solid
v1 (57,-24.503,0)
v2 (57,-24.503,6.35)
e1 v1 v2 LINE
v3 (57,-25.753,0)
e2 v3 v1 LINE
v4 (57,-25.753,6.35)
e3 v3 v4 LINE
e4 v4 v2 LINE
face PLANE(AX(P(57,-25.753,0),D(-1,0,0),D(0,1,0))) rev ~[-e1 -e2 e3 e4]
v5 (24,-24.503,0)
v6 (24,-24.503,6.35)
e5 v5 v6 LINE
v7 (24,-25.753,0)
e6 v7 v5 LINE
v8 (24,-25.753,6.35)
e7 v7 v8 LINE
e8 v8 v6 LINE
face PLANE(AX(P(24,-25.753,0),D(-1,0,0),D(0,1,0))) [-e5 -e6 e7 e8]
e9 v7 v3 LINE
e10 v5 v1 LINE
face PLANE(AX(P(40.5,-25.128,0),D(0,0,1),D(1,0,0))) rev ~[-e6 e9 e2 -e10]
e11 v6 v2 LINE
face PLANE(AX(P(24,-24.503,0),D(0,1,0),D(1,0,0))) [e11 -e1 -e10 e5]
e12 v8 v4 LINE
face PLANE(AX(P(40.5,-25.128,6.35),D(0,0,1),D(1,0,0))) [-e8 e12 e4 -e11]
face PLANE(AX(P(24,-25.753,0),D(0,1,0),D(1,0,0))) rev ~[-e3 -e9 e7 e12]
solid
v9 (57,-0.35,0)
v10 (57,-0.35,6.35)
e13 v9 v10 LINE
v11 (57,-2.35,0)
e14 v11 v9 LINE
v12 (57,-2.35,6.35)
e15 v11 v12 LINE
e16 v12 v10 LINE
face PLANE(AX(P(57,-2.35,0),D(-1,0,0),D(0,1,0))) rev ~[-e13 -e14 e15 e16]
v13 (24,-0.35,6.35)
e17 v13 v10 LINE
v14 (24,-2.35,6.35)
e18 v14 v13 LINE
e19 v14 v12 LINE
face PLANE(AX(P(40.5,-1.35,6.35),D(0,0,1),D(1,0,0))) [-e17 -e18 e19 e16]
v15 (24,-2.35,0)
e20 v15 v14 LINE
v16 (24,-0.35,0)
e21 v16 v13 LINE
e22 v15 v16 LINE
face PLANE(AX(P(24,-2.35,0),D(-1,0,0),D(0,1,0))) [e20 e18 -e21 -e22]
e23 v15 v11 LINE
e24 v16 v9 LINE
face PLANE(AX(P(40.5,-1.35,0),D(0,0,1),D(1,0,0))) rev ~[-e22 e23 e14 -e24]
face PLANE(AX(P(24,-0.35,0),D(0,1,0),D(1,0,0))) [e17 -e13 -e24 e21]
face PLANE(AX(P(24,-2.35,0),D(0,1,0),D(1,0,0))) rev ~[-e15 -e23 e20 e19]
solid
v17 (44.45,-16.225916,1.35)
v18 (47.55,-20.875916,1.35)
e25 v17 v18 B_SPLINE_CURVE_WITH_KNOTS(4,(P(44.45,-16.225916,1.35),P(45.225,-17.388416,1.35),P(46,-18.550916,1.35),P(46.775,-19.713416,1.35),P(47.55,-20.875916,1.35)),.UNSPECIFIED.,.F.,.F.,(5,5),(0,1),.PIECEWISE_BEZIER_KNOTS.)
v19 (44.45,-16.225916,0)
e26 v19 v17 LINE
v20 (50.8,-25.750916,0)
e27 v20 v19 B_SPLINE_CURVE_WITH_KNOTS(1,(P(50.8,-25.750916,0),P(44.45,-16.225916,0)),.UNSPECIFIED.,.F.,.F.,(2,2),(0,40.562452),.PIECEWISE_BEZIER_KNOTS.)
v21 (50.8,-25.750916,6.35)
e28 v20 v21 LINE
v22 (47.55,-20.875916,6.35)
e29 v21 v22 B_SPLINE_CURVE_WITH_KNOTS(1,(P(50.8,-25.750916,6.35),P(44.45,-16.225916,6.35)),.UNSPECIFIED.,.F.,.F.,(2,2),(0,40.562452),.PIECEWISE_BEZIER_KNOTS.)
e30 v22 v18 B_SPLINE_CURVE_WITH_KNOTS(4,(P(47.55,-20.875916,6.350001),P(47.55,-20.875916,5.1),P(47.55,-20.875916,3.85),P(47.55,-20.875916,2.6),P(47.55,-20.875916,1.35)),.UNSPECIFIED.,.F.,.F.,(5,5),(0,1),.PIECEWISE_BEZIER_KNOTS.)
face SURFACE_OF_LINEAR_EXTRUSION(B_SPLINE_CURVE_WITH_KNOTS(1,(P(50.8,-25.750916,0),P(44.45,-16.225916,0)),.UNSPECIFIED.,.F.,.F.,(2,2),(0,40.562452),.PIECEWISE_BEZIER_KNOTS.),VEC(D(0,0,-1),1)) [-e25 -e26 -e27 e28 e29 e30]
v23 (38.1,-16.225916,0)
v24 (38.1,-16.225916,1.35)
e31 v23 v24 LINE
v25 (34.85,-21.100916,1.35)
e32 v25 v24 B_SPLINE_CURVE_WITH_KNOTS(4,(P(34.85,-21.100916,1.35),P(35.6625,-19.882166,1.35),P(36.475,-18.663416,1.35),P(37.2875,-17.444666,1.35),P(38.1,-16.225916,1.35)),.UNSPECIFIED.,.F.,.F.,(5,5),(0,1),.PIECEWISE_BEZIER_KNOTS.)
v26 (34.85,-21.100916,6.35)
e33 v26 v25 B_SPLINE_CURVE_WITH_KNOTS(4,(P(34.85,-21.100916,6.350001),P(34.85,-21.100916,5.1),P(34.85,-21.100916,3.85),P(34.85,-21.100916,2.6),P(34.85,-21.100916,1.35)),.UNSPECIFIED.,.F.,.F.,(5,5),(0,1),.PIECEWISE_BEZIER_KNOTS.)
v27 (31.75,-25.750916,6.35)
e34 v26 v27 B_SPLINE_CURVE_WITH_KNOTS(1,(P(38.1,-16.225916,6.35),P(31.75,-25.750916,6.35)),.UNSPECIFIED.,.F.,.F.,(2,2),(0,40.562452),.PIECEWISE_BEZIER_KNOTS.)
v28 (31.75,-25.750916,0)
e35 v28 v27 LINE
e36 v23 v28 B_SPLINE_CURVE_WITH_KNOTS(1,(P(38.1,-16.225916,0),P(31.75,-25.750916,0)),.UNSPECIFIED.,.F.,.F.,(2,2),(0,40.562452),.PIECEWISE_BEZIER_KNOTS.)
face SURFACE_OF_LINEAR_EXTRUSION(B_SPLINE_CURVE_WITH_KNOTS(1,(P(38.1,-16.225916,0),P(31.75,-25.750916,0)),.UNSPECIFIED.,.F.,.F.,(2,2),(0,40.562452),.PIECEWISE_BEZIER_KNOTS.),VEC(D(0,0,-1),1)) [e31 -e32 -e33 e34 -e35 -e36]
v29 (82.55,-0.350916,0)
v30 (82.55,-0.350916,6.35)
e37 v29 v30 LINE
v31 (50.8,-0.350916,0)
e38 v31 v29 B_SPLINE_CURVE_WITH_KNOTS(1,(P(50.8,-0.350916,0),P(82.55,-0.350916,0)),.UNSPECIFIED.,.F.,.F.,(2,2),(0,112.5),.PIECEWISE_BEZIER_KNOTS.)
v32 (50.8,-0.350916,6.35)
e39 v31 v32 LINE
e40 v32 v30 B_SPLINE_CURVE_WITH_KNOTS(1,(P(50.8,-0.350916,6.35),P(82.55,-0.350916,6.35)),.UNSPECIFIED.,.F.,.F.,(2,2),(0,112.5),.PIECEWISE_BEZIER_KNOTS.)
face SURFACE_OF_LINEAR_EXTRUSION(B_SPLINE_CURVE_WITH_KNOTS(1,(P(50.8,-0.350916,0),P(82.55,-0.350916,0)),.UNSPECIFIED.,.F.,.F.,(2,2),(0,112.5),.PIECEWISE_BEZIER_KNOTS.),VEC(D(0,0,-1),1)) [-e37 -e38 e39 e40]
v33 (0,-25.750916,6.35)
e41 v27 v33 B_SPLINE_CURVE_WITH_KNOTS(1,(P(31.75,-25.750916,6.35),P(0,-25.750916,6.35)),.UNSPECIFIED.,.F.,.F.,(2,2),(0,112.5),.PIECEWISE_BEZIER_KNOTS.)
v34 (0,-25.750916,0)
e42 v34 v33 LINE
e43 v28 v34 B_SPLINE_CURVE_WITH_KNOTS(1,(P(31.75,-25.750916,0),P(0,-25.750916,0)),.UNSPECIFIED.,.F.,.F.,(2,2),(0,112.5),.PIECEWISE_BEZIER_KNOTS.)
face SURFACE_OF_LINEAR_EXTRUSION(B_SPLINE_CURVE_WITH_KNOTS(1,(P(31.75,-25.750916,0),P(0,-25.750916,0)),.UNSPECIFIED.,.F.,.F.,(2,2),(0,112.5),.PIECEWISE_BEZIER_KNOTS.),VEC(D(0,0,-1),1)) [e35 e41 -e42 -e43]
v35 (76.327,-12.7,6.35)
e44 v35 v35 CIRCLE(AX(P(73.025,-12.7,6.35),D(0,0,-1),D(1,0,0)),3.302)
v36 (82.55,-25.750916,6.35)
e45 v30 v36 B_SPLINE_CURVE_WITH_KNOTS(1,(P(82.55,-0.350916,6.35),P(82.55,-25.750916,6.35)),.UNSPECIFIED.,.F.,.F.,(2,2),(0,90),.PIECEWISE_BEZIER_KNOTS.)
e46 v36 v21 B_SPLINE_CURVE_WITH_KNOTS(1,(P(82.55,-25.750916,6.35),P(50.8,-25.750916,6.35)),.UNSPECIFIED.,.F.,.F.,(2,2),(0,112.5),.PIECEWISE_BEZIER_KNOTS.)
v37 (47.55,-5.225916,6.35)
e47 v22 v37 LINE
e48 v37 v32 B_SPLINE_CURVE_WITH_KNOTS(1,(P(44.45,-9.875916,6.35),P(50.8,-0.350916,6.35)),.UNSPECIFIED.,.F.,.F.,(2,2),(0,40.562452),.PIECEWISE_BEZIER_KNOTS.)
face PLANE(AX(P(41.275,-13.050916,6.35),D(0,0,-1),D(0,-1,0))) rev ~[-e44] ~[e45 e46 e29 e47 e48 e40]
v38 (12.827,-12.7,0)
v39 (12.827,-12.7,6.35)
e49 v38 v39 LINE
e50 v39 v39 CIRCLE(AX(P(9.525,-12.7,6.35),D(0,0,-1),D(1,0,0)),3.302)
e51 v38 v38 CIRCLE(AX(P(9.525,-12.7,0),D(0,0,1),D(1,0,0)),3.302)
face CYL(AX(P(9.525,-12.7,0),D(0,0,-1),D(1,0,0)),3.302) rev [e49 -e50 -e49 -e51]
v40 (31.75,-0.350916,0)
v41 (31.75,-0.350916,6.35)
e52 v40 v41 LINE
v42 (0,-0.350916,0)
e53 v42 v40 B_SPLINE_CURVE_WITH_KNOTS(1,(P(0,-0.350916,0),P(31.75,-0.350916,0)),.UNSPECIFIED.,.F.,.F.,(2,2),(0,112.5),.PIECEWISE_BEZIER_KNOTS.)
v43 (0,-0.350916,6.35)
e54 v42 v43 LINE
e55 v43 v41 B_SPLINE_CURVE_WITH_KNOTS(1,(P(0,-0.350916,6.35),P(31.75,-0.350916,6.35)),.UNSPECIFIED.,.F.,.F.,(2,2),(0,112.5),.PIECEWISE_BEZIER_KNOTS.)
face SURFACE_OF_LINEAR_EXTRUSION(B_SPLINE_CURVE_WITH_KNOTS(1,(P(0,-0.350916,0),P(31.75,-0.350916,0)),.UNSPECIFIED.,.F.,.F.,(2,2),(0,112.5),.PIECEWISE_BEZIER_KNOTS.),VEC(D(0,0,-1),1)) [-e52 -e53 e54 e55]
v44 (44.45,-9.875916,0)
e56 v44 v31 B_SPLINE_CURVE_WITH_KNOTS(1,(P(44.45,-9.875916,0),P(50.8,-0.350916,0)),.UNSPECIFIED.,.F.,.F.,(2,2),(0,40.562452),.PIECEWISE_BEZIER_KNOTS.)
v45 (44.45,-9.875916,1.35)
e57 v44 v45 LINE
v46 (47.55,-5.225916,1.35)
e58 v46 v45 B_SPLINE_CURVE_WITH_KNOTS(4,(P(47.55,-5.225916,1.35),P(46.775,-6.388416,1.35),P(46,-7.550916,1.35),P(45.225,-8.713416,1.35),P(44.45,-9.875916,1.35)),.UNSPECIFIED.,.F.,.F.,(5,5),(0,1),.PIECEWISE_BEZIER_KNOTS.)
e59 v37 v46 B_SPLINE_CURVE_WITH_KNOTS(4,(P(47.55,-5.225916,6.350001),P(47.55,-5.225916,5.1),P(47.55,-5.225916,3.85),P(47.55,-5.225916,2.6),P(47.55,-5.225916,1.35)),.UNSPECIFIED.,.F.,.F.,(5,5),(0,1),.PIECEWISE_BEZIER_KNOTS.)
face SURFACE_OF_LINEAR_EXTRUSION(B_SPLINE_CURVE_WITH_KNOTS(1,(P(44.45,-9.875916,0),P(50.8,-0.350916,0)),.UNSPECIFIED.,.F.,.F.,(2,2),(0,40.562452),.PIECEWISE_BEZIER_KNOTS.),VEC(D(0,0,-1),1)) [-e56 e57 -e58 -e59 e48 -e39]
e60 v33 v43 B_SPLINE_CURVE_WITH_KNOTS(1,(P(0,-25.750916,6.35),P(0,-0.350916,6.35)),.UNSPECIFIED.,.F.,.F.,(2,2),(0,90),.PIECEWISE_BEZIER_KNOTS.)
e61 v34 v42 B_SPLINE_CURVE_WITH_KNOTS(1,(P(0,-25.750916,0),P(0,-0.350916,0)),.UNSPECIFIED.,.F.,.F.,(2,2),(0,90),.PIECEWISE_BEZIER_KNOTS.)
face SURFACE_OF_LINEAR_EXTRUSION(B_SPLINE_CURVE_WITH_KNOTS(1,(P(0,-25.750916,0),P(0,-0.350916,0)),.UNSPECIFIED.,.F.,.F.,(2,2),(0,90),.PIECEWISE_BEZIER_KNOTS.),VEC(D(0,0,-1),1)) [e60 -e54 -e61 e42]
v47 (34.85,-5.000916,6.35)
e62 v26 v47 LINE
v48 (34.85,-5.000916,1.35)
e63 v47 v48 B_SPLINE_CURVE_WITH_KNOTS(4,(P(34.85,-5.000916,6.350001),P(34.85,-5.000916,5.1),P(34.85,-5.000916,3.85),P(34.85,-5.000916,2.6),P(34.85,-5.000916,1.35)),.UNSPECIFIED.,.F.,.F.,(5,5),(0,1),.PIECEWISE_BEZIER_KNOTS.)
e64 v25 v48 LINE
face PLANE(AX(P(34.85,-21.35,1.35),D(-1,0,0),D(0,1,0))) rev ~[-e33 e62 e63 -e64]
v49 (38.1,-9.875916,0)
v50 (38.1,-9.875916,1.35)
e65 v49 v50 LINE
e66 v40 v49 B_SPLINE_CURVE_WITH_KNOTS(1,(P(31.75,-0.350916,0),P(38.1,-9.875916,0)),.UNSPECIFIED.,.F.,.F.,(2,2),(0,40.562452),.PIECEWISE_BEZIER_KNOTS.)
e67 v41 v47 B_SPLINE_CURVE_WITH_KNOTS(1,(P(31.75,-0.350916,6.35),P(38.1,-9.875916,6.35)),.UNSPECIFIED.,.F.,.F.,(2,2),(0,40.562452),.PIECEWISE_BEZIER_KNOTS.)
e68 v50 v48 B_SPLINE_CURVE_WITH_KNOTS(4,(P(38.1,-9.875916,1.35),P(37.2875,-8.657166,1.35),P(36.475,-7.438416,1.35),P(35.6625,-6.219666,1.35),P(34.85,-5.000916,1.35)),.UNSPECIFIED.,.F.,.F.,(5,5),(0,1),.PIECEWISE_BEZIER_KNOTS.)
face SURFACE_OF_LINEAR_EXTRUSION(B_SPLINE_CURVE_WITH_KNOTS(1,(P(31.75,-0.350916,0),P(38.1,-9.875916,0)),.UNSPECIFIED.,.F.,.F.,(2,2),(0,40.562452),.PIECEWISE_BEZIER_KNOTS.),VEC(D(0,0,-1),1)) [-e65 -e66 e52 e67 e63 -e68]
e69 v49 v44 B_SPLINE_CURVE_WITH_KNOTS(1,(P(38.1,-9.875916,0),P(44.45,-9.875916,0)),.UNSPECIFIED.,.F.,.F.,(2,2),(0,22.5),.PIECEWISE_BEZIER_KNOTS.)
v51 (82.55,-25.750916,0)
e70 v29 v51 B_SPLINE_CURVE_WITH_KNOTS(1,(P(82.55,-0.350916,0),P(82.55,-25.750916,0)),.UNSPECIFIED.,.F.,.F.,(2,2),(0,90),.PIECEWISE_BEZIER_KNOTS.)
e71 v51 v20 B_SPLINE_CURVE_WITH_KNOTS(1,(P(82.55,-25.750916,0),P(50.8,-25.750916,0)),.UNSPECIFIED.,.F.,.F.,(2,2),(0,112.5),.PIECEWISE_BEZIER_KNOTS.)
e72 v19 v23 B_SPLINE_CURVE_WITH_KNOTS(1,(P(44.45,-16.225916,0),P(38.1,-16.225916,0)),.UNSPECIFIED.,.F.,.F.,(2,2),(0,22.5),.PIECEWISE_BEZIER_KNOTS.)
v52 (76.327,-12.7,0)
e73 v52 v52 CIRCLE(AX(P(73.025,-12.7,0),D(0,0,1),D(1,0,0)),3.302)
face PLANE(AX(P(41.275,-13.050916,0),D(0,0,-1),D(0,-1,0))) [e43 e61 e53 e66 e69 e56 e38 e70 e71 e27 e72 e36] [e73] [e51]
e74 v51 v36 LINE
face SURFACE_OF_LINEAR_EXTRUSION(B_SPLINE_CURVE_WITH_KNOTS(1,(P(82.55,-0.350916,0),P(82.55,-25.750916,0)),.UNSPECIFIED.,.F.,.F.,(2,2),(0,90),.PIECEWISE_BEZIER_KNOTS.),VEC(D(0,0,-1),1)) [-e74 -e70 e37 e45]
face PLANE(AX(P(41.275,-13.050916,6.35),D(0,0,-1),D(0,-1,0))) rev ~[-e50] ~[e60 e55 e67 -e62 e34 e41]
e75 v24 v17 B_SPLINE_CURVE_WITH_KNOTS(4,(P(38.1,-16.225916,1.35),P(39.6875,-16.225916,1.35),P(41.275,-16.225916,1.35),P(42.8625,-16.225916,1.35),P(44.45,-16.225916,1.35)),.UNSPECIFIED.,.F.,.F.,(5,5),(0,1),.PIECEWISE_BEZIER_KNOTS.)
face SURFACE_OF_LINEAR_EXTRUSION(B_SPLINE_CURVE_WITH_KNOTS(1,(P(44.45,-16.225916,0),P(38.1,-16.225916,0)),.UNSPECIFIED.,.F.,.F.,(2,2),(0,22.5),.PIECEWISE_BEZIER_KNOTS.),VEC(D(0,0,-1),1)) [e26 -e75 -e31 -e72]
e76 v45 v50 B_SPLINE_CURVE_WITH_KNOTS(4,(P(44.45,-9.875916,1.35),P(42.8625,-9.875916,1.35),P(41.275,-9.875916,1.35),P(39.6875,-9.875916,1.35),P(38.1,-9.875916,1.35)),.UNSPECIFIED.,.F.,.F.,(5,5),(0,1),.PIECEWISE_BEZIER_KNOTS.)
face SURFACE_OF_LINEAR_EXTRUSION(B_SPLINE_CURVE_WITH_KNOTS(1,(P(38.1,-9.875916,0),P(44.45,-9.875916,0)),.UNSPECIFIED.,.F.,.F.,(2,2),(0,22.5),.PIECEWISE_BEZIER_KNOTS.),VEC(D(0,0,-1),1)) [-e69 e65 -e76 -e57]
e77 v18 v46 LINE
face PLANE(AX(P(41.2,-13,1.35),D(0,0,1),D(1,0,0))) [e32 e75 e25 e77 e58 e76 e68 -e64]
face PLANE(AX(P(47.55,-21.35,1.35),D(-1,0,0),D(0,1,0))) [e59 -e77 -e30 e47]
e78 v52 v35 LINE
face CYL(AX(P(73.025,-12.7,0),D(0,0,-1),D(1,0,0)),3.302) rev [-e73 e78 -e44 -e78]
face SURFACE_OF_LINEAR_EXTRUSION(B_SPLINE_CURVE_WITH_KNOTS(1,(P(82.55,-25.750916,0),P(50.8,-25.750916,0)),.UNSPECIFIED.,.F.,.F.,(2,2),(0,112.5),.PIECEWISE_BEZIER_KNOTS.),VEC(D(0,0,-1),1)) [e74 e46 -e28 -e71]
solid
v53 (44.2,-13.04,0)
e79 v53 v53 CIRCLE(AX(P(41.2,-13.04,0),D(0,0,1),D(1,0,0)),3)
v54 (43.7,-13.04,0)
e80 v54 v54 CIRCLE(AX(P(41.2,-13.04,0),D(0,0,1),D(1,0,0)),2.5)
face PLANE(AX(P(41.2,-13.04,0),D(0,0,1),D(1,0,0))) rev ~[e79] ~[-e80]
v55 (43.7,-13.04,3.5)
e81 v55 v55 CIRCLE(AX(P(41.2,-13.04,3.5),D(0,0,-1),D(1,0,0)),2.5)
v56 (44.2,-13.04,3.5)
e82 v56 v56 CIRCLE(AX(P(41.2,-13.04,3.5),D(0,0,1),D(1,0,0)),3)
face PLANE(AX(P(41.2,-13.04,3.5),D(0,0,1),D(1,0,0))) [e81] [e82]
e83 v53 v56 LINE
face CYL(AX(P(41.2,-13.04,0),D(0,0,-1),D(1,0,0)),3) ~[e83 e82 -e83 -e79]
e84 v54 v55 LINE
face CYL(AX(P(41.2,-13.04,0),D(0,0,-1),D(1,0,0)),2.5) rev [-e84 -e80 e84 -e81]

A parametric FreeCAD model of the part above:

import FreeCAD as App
import Part
import Sketcher

V = App.Vector
Q = App.Units.Quantity

doc = App.newDocument("Part")
body = doc.addObject("PartDesign::Body", "Body")

# Sketch on XY plane
sketch1 = body.newObject("Sketcher::SketchObject", "Sketch")
sketch1.AttachmentSupport = (doc.getObject("XY_Plane"), [""])
sketch1.MapMode = "FlatFace"
sketch1.addGeometry([
    Part.LineSegment(V(24, -0.3, 0), V(24, -2.4, 0)),
    Part.LineSegment(V(24, -2.4, 0), V(57, -2.4, 0)),
    Part.LineSegment(V(57, -2.4, 0), V(57, -0.3, 0)),
    Part.LineSegment(V(57, -0.3, 0), V(24, -0.3, 0)),
], False)
sketch1.addConstraint([
    Sketcher.Constraint("Coincident", 0, 2, 1, 1),
    Sketcher.Constraint("Coincident", 1, 2, 2, 1),
    Sketcher.Constraint("Coincident", 2, 2, 3, 1),
    Sketcher.Constraint("Coincident", 3, 2, 0, 1),
    Sketcher.Constraint("Vertical", 0),
    Sketcher.Constraint("Horizontal", 1),
    Sketcher.Constraint("Vertical", 2),
    Sketcher.Constraint("Horizontal", 3),
    Sketcher.Constraint("DistanceX", 1, 1, 1, 2, Q("33 mm")),
    Sketcher.Constraint("DistanceY", 0, 2, 0, 1, Q("2 mm")),
    Sketcher.Constraint("DistanceX", -1, 1, 0, 2, Q("24 mm")),
    Sketcher.Constraint("DistanceY", 0, 2, -1, 1, Q("2.35 mm")),
])
pad1 = body.newObject("PartDesign::Pad", "Pad")
pad1.Profile = sketch1
pad1.Length = 6.35
body2 = doc.addObject("PartDesign::Body", "Body001")

# Sketch on XY plane
sketch2 = body2.newObject("Sketcher::SketchObject", "Sketch001")
sketch2.AttachmentSupport = (doc.getObject("XY_Plane001"), [""])
sketch2.MapMode = "FlatFace"
sketch2.addGeometry([
    Part.LineSegment(V(24, -24.5, 0), V(24, -25.8, 0)),
    Part.LineSegment(V(24, -25.8, 0), V(57, -25.8, 0)),
    Part.LineSegment(V(57, -25.8, 0), V(57, -24.5, 0)),
    Part.LineSegment(V(57, -24.5, 0), V(24, -24.5, 0)),
], False)
sketch2.addConstraint([
    Sketcher.Constraint("Coincident", 0, 2, 1, 1),
    Sketcher.Constraint("Coincident", 1, 2, 2, 1),
    Sketcher.Constraint("Coincident", 2, 2, 3, 1),
    Sketcher.Constraint("Coincident", 3, 2, 0, 1),
    Sketcher.Constraint("Vertical", 0),
    Sketcher.Constraint("Horizontal", 1),
    Sketcher.Constraint("Vertical", 2),
    Sketcher.Constraint("Horizontal", 3),
    Sketcher.Constraint("DistanceX", 1, 1, 1, 2, Q("33 mm")),
    Sketcher.Constraint("DistanceX", -1, 1, 0, 2, Q("24 mm")),
    Sketcher.Constraint("DistanceY", 0, 2, 0, 1, Q("1.25 mm")),
    Sketcher.Constraint("DistanceY", 0, 2, -1, 1, Q("25.753 mm")),
])
pad2 = body2.newObject("PartDesign::Pad", "Pad001")
pad2.Profile = sketch2
pad2.Length = 6.35
body3 = doc.addObject("PartDesign::Body", "Body002")

# Sketch on XY plane
sketch3 = body3.newObject("Sketcher::SketchObject", "Sketch002")
sketch3.AttachmentSupport = (doc.getObject("XY_Plane002"), [""])
sketch3.MapMode = "FlatFace"
sketch3.addGeometry(Part.Circle(V(73, -12.7, 0), V(0, 0, 1), 3.3), False)
sketch3.addConstraint([
    Sketcher.Constraint("Diameter", 0, Q("6.604 mm")),
    Sketcher.Constraint("DistanceY", 0, 3, -1, 1, Q("12.7 mm")),
    Sketcher.Constraint("DistanceX", -1, 1, 0, 3, Q("73.025 mm")),
])
pad3 = body3.newObject("PartDesign::Pad", "Pad002")
pad3.Profile = sketch3
pad3.Length = 10
body4 = doc.addObject("PartDesign::Body", "Body003")

# Sketch on XY plane
sketch4 = body4.newObject("Sketcher::SketchObject", "Sketch003")
sketch4.AttachmentSupport = (doc.getObject("XY_Plane003"), [""])
sketch4.MapMode = "FlatFace"
sketch4.AttachmentOffset = App.Placement(V(0, 0, 1.35), App.Rotation())
sketch4.addGeometry([
    Part.LineSegment(V(35, -5, 0), V(35, -21, 0)),
    Part.LineSegment(V(35, -21, 0), V(48, -21, 0)),
    Part.LineSegment(V(48, -21, 0), V(48, -5, 0)),
    Part.LineSegment(V(48, -5, 0), V(35, -5, 0)),
], False)
sketch4.addConstraint([
    Sketcher.Constraint("Coincident", 0, 2, 1, 1),
    Sketcher.Constraint("Coincident", 1, 2, 2, 1),
    Sketcher.Constraint("Coincident", 2, 2, 3, 1),
    Sketcher.Constraint("Coincident", 3, 2, 0, 1),
    Sketcher.Constraint("Vertical", 0),
    Sketcher.Constraint("Horizontal", 1),
    Sketcher.Constraint("Vertical", 2),
    Sketcher.Constraint("Horizontal", 3),
    Sketcher.Constraint("DistanceX", 1, 1, 1, 2, Q("12.7 mm")),
    Sketcher.Constraint("DistanceY", 0, 2, 0, 1, Q("16.7 mm")),
    Sketcher.Constraint("DistanceX", -1, 1, 0, 2, Q("34.85 mm")),
    Sketcher.Constraint("DistanceY", 0, 2, -1, 1, Q("21.35 mm")),
])
pad4 = body4.newObject("PartDesign::Pad", "Pad003")
pad4.Profile = sketch4
pad4.Length = 17
body5 = doc.addObject("PartDesign::Body", "Body004")
body5.AllowCompound = True

# Sketch on XY plane
sketch5 = body5.newObject("Sketcher::SketchObject", "Sketch004")
sketch5.AttachmentSupport = (doc.getObject("XY_Plane004"), [""])
sketch5.MapMode = "FlatFace"
sketch5.addGeometry(Part.Circle(V(9.5, -12.7, 0), V(0, 0, 1), 3.3), False)
sketch5.addConstraint([
    Sketcher.Constraint("Diameter", 0, Q("6.604 mm")),
    Sketcher.Constraint("DistanceY", 0, 3, -1, 1, Q("12.7 mm")),
    Sketcher.Constraint("DistanceX", -1, 1, 0, 3, Q("9.525 mm")),
])
pad5 = body5.newObject("PartDesign::Pad", "Pad004")
pad5.Profile = sketch5
pad5.Length = 10
doc.recompute()

boolean = body5.newObject("PartDesign::Boolean", "Boolean")
boolean.Type = "Fuse"
boolean.addObjects([body3])
doc.recompute()

boolean2 = body5.newObject("PartDesign::Boolean", "Boolean001")
boolean2.Type = "Fuse"
boolean2.addObjects([body4])
body6 = doc.addObject("PartDesign::Body", "Body005")

# Sketch on XY plane
sketch6 = body6.newObject("Sketcher::SketchObject", "Sketch005")
sketch6.AttachmentSupport = (doc.getObject("XY_Plane005"), [""])
sketch6.MapMode = "FlatFace"
sketch6.addGeometry([
    Part.BSplineCurve([V(0, -0.350916, 0), V(31.75, -0.350916, 0)], [2, 2], [0, 112.5], False, 1, [1, 1], False),  # 0
    Part.BSplineCurve([V(31.75, -0.350916, 0), V(38.1, -9.875916, 0)], [2, 2], [0, 40.562452], False, 1, [1, 1], False),  # 1
    Part.BSplineCurve([V(38.1, -9.875916, 0), V(44.45, -9.875916, 0)], [2, 2], [0, 22.5], False, 1, [1, 1], False),  # 2
    Part.BSplineCurve([V(44.45, -9.875916, 0), V(50.8, -0.350916, 0)], [2, 2], [0, 40.562452], False, 1, [1, 1], False),  # 3
    Part.BSplineCurve([V(50.8, -0.350916, 0), V(82.55, -0.350916, 0)], [2, 2], [0, 112.5], False, 1, [1, 1], False),  # 4
    Part.BSplineCurve([V(82.55, -0.350916, 0), V(82.55, -25.750916, 0)], [2, 2], [0, 90], False, 1, [1, 1], False),  # 5
    Part.BSplineCurve([V(82.55, -25.750916, 0), V(50.8, -25.750916, 0)], [2, 2], [0, 112.5], False, 1, [1, 1], False),  # 6
    Part.BSplineCurve([V(50.8, -25.750916, 0), V(44.45, -16.225916, 0)], [2, 2], [0, 40.562452], False, 1, [1, 1], False),  # 7
    Part.BSplineCurve([V(44.45, -16.225916, 0), V(38.1, -16.225916, 0)], [2, 2], [0, 22.5], False, 1, [1, 1], False),  # 8
    Part.BSplineCurve([V(38.1, -16.225916, 0), V(31.75, -25.750916, 0)], [2, 2], [0, 40.562452], False, 1, [1, 1], False),  # 9
    Part.BSplineCurve([V(31.75, -25.750916, 0), V(0, -25.750916, 0)], [2, 2], [0, 112.5], False, 1, [1, 1], False),  # 10
    Part.BSplineCurve([V(0, -25.750916, 0), V(0, -0.350916, 0)], [2, 2], [0, 90], False, 1, [1, 1], False),  # 11
], False)
sketch6.addConstraint([
    Sketcher.Constraint("Block", 0),
    Sketcher.Constraint("Block", 1),
    Sketcher.Constraint("Block", 2),
    Sketcher.Constraint("Block", 3),
    Sketcher.Constraint("Block", 4),
    Sketcher.Constraint("Block", 5),
    Sketcher.Constraint("Block", 6),
    Sketcher.Constraint("Block", 7),
    Sketcher.Constraint("Block", 8),
    Sketcher.Constraint("Block", 9),
    Sketcher.Constraint("Block", 10),
    Sketcher.Constraint("Block", 11),
])
pad6 = body6.newObject("PartDesign::Pad", "Pad005")
pad6.Profile = sketch6
pad6.Length = 6.35
doc.recompute()

boolean3 = body6.newObject("PartDesign::Boolean", "Boolean002")
boolean3.Type = "Cut"
boolean3.addObjects([body5])
body7 = doc.addObject("PartDesign::Body", "Body006")

# Sketch on XY plane
sketch7 = body7.newObject("Sketcher::SketchObject", "Sketch006")
sketch7.AttachmentSupport = (doc.getObject("XY_Plane006"), [""])
sketch7.MapMode = "FlatFace"
sketch7.addGeometry(Part.Circle(V(41.2, -13, 0), V(0, 0, 1), 2.5), False)
sketch7.addConstraint([
    Sketcher.Constraint("Diameter", 0, Q("5 mm")),
    Sketcher.Constraint("DistanceX", -1, 1, 0, 3, Q("41.2 mm")),
    Sketcher.Constraint("DistanceY", 0, 3, -1, 1, Q("13.04 mm")),
])
pad7 = body7.newObject("PartDesign::Pad", "Pad006")
pad7.Profile = sketch7
pad7.Length = 16
body8 = doc.addObject("PartDesign::Body", "Body007")

# Sketch on XY plane
sketch8 = body8.newObject("Sketcher::SketchObject", "Sketch007")
sketch8.AttachmentSupport = (doc.getObject("XY_Plane007"), [""])
sketch8.MapMode = "FlatFace"
sketch8.addGeometry(Part.Circle(V(41.2, -13, 0), V(0, 0, 1), 3), False)
sketch8.addConstraint([
    Sketcher.Constraint("Diameter", 0, Q("6 mm")),
    Sketcher.Constraint("DistanceX", -1, 1, 0, 3, Q("41.2 mm")),
    Sketcher.Constraint("DistanceY", 0, 3, -1, 1, Q("13.04 mm")),
])
pad8 = body8.newObject("PartDesign::Pad", "Pad007")
pad8.Profile = sketch8
pad8.Length = 3.5
doc.recompute()

boolean4 = body8.newObject("PartDesign::Boolean", "Boolean003")
boolean4.Type = "Cut"
boolean4.addObjects([body7])

doc.recompute()
